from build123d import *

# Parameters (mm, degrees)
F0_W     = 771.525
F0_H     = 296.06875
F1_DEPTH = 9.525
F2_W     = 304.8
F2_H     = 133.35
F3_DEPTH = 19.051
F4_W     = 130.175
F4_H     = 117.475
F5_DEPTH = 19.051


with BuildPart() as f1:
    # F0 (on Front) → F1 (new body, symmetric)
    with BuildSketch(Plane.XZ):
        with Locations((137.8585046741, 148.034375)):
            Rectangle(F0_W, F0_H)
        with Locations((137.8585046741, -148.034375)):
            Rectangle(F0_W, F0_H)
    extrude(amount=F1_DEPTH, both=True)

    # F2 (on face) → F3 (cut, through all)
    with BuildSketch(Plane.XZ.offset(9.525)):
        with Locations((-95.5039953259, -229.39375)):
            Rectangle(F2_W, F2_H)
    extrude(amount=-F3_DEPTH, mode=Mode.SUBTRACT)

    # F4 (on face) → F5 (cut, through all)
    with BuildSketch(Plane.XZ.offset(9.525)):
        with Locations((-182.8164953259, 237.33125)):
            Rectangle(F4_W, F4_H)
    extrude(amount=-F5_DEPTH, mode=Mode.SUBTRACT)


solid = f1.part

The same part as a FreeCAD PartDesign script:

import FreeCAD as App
import Part
import Sketcher
from FreeCAD import Vector
Q = App.Units.Quantity


def add_polygon(sketch, points):
    """Adds a closed chain of lines whose ends are joined by coincident constraints."""
    first, n = sketch.GeometryCount, len(points)
    for a, b in zip(points, points[1:] + points[:1]):
        sketch.addGeometry(Part.LineSegment(App.Vector(*a, 0), App.Vector(*b, 0)), False)
    for i in range(n):
        sketch.addConstraint(Sketcher.Constraint("Coincident", first + i, 2, first + (i + 1) % n, 1))

doc = App.newDocument("Part")
body = doc.addObject("PartDesign::Body", "Body")

sketch1 = doc.addObject("Sketcher::SketchObject", "Sketch")
body.addObject(sketch1)
sketch1.AttachmentSupport = (doc.XZ_Plane, [""])
sketch1.MapMode = "FlatFace"
add_polygon(sketch1, [(-248, 296), (-248, -296), (524, -296), (524, 296)])
sketch1.addConstraint([
    Sketcher.Constraint("Vertical", 0),
    Sketcher.Constraint("Horizontal", 1),
    Sketcher.Constraint("Vertical", 2),
    Sketcher.Constraint("Horizontal", 3),
    Sketcher.Constraint("DistanceX", 1, 1, 1, 2, Q("30.375 in")),
    Sketcher.Constraint("DistanceY", 0, 2, 0, 1, Q("23.3125 in")),
    Sketcher.Constraint("DistanceX", 0, 2, -1, 1, Q("9.7599998 in")),
    Sketcher.Constraint("DistanceY", 0, 2, -1, 1, Q("11.65625 in")),
])
pad1 = doc.addObject("PartDesign::Pad", "Pad")
body.addObject(pad1)
pad1.Profile = sketch1
pad1.Length = Q("0.75 in")
pad1.Midplane = True

sketch2 = doc.addObject("Sketcher::SketchObject", "Sketch001")
body.addObject(sketch2)
sketch2.AttachmentSupport = (doc.XZ_Plane, [""])
sketch2.MapMode = "FlatFace"
sketch2.AttachmentOffset = App.Placement(Vector(0, 0, 0.375 * 25.4), App.Rotation())
add_polygon(sketch2, [(-248, -163), (-248, -296), (57, -296), (57, -163)])
sketch2.addConstraint([
    Sketcher.Constraint("Vertical", 0),
    Sketcher.Constraint("Horizontal", 1),
    Sketcher.Constraint("Vertical", 2),
    Sketcher.Constraint("Horizontal", 3),
    Sketcher.Constraint("DistanceX", 1, 1, 1, 2, Q("12 in")),
    Sketcher.Constraint("DistanceY", 0, 2, 0, 1, Q("5.25 in")),
    Sketcher.Constraint("DistanceX", 0, 2, -1, 1, Q("9.7599998 in")),
    Sketcher.Constraint("DistanceY", 0, 2, -1, 1, Q("11.65625 in")),
])
pocket1 = doc.addObject("PartDesign::Pocket", "Pocket")
body.addObject(pocket1)
pocket1.Profile = sketch2
pocket1.Type = "ThroughAll"

sketch3 = doc.addObject("Sketcher::SketchObject", "Sketch002")
body.addObject(sketch3)
sketch3.AttachmentSupport = (doc.XZ_Plane, [""])
sketch3.MapMode = "FlatFace"
sketch3.AttachmentOffset = App.Placement(Vector(0, 0, 0.375 * 25.4), App.Rotation())
add_polygon(sketch3, [(-248, 296), (-248, 179), (-118, 179), (-118, 296)])
sketch3.addConstraint([
    Sketcher.Constraint("Vertical", 0),
    Sketcher.Constraint("Horizontal", 1),
    Sketcher.Constraint("Vertical", 2),
    Sketcher.Constraint("Horizontal", 3),
    Sketcher.Constraint("DistanceX", 1, 1, 1, 2, Q("5.125 in")),
    Sketcher.Constraint("DistanceY", 0, 2, 0, 1, Q("4.625 in")),
    Sketcher.Constraint("DistanceX", 0, 2, -1, 1, Q("9.7599998 in")),
    Sketcher.Constraint("DistanceY", -1, 1, 0, 2, Q("7.03125 in")),
])
pocket2 = doc.addObject("PartDesign::Pocket", "Pocket001")
body.addObject(pocket2)
pocket2.Profile = sketch3
pocket2.Type = "ThroughAll"

doc.recompute()
